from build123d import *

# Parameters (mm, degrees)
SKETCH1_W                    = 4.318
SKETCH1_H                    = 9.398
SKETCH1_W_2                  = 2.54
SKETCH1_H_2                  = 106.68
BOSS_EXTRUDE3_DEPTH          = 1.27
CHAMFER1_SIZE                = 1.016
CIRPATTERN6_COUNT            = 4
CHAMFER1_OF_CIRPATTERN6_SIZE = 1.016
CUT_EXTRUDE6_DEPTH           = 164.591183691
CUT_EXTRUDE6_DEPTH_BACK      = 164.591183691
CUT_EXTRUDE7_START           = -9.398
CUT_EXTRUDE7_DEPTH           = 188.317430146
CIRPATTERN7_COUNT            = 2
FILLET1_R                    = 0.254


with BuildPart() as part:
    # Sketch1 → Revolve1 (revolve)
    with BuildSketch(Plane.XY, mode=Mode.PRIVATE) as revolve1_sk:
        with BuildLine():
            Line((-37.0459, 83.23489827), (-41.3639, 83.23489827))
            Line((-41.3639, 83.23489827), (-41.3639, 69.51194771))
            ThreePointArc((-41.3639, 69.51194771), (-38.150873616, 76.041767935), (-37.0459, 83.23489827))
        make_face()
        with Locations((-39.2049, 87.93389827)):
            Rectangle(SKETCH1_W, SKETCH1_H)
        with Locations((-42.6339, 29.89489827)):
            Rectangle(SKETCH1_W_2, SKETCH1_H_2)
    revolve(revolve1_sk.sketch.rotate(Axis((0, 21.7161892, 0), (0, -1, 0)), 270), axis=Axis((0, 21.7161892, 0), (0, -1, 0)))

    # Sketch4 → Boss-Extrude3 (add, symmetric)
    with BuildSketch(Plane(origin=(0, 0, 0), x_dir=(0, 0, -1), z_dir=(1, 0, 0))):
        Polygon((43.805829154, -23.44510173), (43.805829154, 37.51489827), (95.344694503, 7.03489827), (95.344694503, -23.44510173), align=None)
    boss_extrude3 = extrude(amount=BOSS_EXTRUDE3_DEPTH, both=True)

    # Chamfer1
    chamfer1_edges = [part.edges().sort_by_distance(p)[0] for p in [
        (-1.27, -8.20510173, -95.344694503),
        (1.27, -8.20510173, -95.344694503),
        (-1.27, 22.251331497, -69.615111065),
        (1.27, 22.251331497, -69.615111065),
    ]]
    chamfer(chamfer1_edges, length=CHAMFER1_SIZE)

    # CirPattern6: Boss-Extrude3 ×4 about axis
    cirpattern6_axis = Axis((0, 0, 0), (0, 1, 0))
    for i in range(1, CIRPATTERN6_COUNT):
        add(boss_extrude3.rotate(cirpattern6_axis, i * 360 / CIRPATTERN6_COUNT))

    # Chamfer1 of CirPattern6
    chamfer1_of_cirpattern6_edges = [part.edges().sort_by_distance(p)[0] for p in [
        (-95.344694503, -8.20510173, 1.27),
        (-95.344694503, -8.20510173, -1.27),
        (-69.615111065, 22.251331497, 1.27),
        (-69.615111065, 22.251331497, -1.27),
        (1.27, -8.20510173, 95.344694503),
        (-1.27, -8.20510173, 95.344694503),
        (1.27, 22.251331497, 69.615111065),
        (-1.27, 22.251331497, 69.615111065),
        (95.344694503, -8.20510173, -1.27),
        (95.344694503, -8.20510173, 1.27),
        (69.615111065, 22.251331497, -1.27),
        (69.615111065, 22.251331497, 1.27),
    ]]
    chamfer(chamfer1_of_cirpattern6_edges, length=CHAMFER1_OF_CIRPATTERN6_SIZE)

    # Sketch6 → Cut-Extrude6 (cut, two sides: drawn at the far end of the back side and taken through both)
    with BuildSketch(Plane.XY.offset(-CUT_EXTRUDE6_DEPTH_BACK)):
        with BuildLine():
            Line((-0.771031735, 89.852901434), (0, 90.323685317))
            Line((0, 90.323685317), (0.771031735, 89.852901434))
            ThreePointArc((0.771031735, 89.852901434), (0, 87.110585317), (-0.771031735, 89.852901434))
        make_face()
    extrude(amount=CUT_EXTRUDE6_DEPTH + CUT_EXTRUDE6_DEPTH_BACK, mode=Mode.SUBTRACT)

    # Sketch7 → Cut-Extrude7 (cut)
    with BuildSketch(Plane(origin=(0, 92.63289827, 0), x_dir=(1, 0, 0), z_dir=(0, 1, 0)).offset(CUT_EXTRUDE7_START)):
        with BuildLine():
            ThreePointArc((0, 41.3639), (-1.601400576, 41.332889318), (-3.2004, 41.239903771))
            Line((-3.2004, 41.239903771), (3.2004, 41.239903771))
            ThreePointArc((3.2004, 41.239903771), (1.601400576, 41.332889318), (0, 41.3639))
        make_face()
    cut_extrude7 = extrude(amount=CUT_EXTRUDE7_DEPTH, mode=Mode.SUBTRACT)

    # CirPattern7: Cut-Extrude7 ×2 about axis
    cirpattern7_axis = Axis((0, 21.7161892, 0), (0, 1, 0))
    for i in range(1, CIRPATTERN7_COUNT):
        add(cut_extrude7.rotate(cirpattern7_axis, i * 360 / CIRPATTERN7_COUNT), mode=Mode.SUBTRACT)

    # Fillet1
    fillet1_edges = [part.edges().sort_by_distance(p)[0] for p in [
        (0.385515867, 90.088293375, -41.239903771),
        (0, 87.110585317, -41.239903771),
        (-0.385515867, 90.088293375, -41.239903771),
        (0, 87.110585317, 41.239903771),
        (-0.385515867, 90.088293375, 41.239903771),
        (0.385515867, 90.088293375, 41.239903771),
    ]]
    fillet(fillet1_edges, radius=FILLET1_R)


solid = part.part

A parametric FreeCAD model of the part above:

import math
import FreeCAD as App
import Part
import Sketcher
Q = App.Units.Quantity


def edges_at(feature, points):
    """Names of the edges that pass closest to the given points."""
    edges = feature.Shape.Edges
    near = lambda p: min(range(len(edges)), key=lambda i: edges[i].distToShape(Part.Vertex(*p))[0])
    return sorted({f"Edge{near(p) + 1}" for p in points})

doc = App.newDocument("Part")
body = doc.addObject("PartDesign::Body", "Body")

# Sketch on XY plane
sketch1 = body.newObject("Sketcher::SketchObject", "Sketch")
sketch1.AttachmentSupport = (doc.getObject("XY_Plane"), [""])
sketch1.MapMode = "FlatFace"
sketch1.addGeometry([
    Part.ArcOfCircle(Part.Circle(App.Vector(-61, 83.2, 0), App.Vector(0, 0, 1), 24), math.radians(-35), math.radians(0)),  # 0
    Part.LineSegment(App.Vector(-37, 83.2, 0), App.Vector(-37, 92.6, 0)),  # 1
    Part.LineSegment(App.Vector(-37, 92.6, 0), App.Vector(-41.4, 92.6, 0)),  # 2
    Part.LineSegment(App.Vector(-41.4, 92.6, 0), App.Vector(-41.4, 83.2, 0)),  # 3
    Part.LineSegment(App.Vector(-41.4, 83.2, 0), App.Vector(-43.9, 83.2, 0)),  # 4
    Part.LineSegment(App.Vector(-43.9, 83.2, 0), App.Vector(-43.9, -23.4, 0)),  # 5
    Part.LineSegment(App.Vector(-43.9, -23.4, 0), App.Vector(-41.4, -23.4, 0)),  # 6
    Part.LineSegment(App.Vector(-41.4, -23.4, 0), App.Vector(-41.4, 69.5, 0)),  # 7
], False)
sketch1.addConstraint([
    Sketcher.Constraint("Tangent", 0, 2, 1, 1),
    Sketcher.Constraint("Coincident", 1, 2, 2, 1),
    Sketcher.Constraint("Coincident", 2, 2, 3, 1),
    Sketcher.Constraint("Coincident", 3, 2, 4, 1),
    Sketcher.Constraint("Coincident", 4, 2, 5, 1),
    Sketcher.Constraint("Coincident", 5, 2, 6, 1),
    Sketcher.Constraint("Coincident", 6, 2, 7, 1),
    Sketcher.Constraint("Coincident", 7, 2, 0, 1),
    Sketcher.Constraint("Vertical", 1),
    Sketcher.Constraint("Horizontal", 2),
    Sketcher.Constraint("Vertical", 3),
    Sketcher.Constraint("Horizontal", 4),
    Sketcher.Constraint("Vertical", 5),
    Sketcher.Constraint("Horizontal", 6),
    Sketcher.Constraint("Vertical", 7),
    Sketcher.Constraint("Horizontal", 0, 2, 3, 2),
    Sketcher.Constraint("Vertical", 3, 2, 6, 2),
    Sketcher.Constraint("DistanceX", 4, 2, 4, 1, Q("0.1 in")),
    Sketcher.Constraint("DistanceY", 5, 2, 5, 1, Q("4.2 in")),
    Sketcher.Constraint("DistanceX", 2, 2, 2, 1, Q("0.17 in")),
    Sketcher.Constraint("DistanceY", 1, 1, 1, 2, Q("0.37 in")),
    Sketcher.Constraint("Radius", 0, 23.965319),
    Sketcher.Constraint("DistanceX", 0, 2, -1, 1, Q("1.4585 in")),
    Sketcher.Constraint("DistanceY", -1, 1, 0, 3, 83.234898),
])
revolution = body.newObject("PartDesign::Revolution", "Revolution")
revolution.Profile = sketch1
revolution.ReferenceAxis = (sketch1, ["V_Axis"])
revolution.Angle = 360

# Sketch on YZ plane
sketch2 = body.newObject("Sketcher::SketchObject", "Sketch001")
sketch2.AttachmentSupport = (doc.getObject("YZ_Plane"), [""])
sketch2.MapMode = "FlatFace"
sketch2.addGeometry([
    Part.LineSegment(App.Vector(38, -44, 0), App.Vector(-23, -44, 0)),
    Part.LineSegment(App.Vector(-23, -44, 0), App.Vector(-23, -95, 0)),
    Part.LineSegment(App.Vector(-23, -95, 0), App.Vector(7, -95, 0)),
    Part.LineSegment(App.Vector(7, -95, 0), App.Vector(38, -44, 0)),
], False)
sketch2.addConstraint([
    Sketcher.Constraint("Coincident", 0, 2, 1, 1),
    Sketcher.Constraint("Coincident", 1, 2, 2, 1),
    Sketcher.Constraint("Coincident", 2, 2, 3, 1),
    Sketcher.Constraint("Coincident", 3, 2, 0, 1),
    Sketcher.Constraint("Horizontal", 0),
    Sketcher.Constraint("Vertical", 1),
    Sketcher.Constraint("Horizontal", 2),
    Sketcher.Constraint("DistanceX", 0, 2, 0, 1, Q("2.4 in")),
    Sketcher.Constraint("DistanceX", 2, 1, 2, 2, Q("1.2 in")),
    Sketcher.Constraint("Angle", 3, Q("59.4 deg")),
    Sketcher.Constraint("DistanceX", 0, 2, -1, 1, 23.445102),
    Sketcher.Constraint("DistanceY", 0, 2, -1, 1, 43.805829),
])
pad1 = body.newObject("PartDesign::Pad", "Pad")
pad1.Profile = sketch2
pad1.Length = Q("0.1 in")
pad1.Midplane = True
doc.recompute()

chamfer = body.newObject("PartDesign::Chamfer", "Chamfer")
chamfer.Base = (pad1, edges_at(pad1, [
    (-1.27, -8.205, -95.345),
    (1.27, -8.205, -95.345),
    (-1.27, 22.251, -69.615),
    (1.27, 22.251, -69.615),
]))
chamfer.Size = Q("0.04 in")
doc.recompute()

polarpattern = body.newObject("PartDesign::PolarPattern", "PolarPattern")
polarpattern.Originals = [pad1]
polarpattern.Axis = (doc.getObject("Y_Axis"), [""])
polarpattern.Angle = 360
polarpattern.Occurrences = 4
body.Tip = polarpattern
doc.recompute()

chamfer2 = body.newObject("PartDesign::Chamfer", "Chamfer001")
chamfer2.Base = (polarpattern, edges_at(polarpattern, [
    (-95.345, -8.205, 1.27),
    (-95.345, -8.205, -1.27),
    (-69.615, 22.251, 1.27),
    (-69.615, 22.251, -1.27),
    (1.27, -8.205, 95.345),
    (-1.27, -8.205, 95.345),
    (1.27, 22.251, 69.615),
    (-1.27, 22.251, 69.615),
    (95.345, -8.205, -1.27),
    (95.345, -8.205, 1.27),
    (69.615, 22.251, -1.27),
    (69.615, 22.251, 1.27),
]))
chamfer2.Size = Q("0.04 in")

# Sketch on XY plane
sketch3 = body.newObject("Sketcher::SketchObject", "Sketch002")
sketch3.AttachmentSupport = (doc.getObject("XY_Plane"), [""])
sketch3.MapMode = "FlatFace"
sketch3.addGeometry([
    Part.LineSegment(App.Vector(0, 90.3, 0), App.Vector(-0.8, 89.9, 0)),
    Part.ArcOfCircle(Part.Circle(App.Vector(0, 88.6, 0), App.Vector(0, 0, 1), 1.5), math.radians(121), math.radians(419)),
    Part.LineSegment(App.Vector(0.8, 89.9, 0), App.Vector(0, 90.3, 0)),
], False)
sketch3.addConstraint([
    Sketcher.Constraint("Tangent", 0, 2, 1, 1),
    Sketcher.Constraint("Tangent", 1, 2, 2, 1),
    Sketcher.Constraint("Coincident", 2, 2, 0, 1),
    Sketcher.Constraint("Symmetric", 0, 2, 1, 2, -2),
    Sketcher.Constraint("Radius", 1, 1.47955),
    Sketcher.Constraint("DistanceY", -1, 1, 0, 2, 89.852901),
    Sketcher.Constraint("DistanceX", 0, 2, -1, 1, 0.771032),
])
pocket1 = body.newObject("PartDesign::Pocket", "Pocket")
pocket1.Profile = sketch3
pocket1.Type = "ThroughAll"
pocket1.Midplane = True

# Sketch on XZ plane
sketch4 = body.newObject("Sketcher::SketchObject", "Sketch003")
sketch4.AttachmentSupport = (doc.getObject("XZ_Plane"), [""])
sketch4.MapMode = "FlatFace"
sketch4.AttachmentOffset = App.Placement(App.Vector(0, 0, -83.234898), App.Rotation())
sketch4.addGeometry([
    Part.ArcOfCircle(Part.Circle(App.Vector(0, 0, 0), App.Vector(0, 0, 1), 41.4), math.radians(-94.44), math.radians(-90)),
    Part.LineSegment(App.Vector(-3.2, -41.2, 0), App.Vector(3.2, -41.2, 0)),
    Part.ArcOfCircle(Part.Circle(App.Vector(0, 0, 0), App.Vector(0, 0, 1), 41.4), math.radians(-90), math.radians(-85.56)),
], False)
sketch4.addConstraint([
    Sketcher.Constraint("Coincident", 0, 1, 1, 1),
    Sketcher.Constraint("Coincident", 1, 2, 2, 2),
    Sketcher.Constraint("Tangent", 2, 1, 0, 2),
    Sketcher.Constraint("Horizontal", 1),
    Sketcher.Constraint("Coincident", 0, 3, -1, 1),
    Sketcher.Constraint("Equal", 0, 2),
    Sketcher.Constraint("PointOnObject", 2, 1, -2),
    Sketcher.Constraint("Radius", 0, Q("1.6285 in")),
    Sketcher.Constraint("DistanceX", 1, 1, 1, 2, Q("0.252 in")),
])
pocket2 = body.newObject("PartDesign::Pocket", "Pocket001")
pocket2.Profile = sketch4
pocket2.Length = 188.31743
doc.recompute()

polarpattern2 = body.newObject("PartDesign::PolarPattern", "PolarPattern001")
polarpattern2.Originals = [pocket2]
polarpattern2.Axis = (doc.getObject("Y_Axis"), [""])
polarpattern2.Angle = 360
polarpattern2.Occurrences = 2
body.Tip = polarpattern2
doc.recompute()

fillet = body.newObject("PartDesign::Fillet", "Fillet")
fillet.Base = (polarpattern2, edges_at(polarpattern2, [
    (0.386, 90.088, -41.24),
    (0, 87.111, -41.24),
    (-0.386, 90.088, -41.24),
    (0, 87.111, 41.24),
    (-0.386, 90.088, 41.24),
    (0.386, 90.088, 41.24),
]))
fillet.Radius = Q("0.01 in")

doc.recompute()
